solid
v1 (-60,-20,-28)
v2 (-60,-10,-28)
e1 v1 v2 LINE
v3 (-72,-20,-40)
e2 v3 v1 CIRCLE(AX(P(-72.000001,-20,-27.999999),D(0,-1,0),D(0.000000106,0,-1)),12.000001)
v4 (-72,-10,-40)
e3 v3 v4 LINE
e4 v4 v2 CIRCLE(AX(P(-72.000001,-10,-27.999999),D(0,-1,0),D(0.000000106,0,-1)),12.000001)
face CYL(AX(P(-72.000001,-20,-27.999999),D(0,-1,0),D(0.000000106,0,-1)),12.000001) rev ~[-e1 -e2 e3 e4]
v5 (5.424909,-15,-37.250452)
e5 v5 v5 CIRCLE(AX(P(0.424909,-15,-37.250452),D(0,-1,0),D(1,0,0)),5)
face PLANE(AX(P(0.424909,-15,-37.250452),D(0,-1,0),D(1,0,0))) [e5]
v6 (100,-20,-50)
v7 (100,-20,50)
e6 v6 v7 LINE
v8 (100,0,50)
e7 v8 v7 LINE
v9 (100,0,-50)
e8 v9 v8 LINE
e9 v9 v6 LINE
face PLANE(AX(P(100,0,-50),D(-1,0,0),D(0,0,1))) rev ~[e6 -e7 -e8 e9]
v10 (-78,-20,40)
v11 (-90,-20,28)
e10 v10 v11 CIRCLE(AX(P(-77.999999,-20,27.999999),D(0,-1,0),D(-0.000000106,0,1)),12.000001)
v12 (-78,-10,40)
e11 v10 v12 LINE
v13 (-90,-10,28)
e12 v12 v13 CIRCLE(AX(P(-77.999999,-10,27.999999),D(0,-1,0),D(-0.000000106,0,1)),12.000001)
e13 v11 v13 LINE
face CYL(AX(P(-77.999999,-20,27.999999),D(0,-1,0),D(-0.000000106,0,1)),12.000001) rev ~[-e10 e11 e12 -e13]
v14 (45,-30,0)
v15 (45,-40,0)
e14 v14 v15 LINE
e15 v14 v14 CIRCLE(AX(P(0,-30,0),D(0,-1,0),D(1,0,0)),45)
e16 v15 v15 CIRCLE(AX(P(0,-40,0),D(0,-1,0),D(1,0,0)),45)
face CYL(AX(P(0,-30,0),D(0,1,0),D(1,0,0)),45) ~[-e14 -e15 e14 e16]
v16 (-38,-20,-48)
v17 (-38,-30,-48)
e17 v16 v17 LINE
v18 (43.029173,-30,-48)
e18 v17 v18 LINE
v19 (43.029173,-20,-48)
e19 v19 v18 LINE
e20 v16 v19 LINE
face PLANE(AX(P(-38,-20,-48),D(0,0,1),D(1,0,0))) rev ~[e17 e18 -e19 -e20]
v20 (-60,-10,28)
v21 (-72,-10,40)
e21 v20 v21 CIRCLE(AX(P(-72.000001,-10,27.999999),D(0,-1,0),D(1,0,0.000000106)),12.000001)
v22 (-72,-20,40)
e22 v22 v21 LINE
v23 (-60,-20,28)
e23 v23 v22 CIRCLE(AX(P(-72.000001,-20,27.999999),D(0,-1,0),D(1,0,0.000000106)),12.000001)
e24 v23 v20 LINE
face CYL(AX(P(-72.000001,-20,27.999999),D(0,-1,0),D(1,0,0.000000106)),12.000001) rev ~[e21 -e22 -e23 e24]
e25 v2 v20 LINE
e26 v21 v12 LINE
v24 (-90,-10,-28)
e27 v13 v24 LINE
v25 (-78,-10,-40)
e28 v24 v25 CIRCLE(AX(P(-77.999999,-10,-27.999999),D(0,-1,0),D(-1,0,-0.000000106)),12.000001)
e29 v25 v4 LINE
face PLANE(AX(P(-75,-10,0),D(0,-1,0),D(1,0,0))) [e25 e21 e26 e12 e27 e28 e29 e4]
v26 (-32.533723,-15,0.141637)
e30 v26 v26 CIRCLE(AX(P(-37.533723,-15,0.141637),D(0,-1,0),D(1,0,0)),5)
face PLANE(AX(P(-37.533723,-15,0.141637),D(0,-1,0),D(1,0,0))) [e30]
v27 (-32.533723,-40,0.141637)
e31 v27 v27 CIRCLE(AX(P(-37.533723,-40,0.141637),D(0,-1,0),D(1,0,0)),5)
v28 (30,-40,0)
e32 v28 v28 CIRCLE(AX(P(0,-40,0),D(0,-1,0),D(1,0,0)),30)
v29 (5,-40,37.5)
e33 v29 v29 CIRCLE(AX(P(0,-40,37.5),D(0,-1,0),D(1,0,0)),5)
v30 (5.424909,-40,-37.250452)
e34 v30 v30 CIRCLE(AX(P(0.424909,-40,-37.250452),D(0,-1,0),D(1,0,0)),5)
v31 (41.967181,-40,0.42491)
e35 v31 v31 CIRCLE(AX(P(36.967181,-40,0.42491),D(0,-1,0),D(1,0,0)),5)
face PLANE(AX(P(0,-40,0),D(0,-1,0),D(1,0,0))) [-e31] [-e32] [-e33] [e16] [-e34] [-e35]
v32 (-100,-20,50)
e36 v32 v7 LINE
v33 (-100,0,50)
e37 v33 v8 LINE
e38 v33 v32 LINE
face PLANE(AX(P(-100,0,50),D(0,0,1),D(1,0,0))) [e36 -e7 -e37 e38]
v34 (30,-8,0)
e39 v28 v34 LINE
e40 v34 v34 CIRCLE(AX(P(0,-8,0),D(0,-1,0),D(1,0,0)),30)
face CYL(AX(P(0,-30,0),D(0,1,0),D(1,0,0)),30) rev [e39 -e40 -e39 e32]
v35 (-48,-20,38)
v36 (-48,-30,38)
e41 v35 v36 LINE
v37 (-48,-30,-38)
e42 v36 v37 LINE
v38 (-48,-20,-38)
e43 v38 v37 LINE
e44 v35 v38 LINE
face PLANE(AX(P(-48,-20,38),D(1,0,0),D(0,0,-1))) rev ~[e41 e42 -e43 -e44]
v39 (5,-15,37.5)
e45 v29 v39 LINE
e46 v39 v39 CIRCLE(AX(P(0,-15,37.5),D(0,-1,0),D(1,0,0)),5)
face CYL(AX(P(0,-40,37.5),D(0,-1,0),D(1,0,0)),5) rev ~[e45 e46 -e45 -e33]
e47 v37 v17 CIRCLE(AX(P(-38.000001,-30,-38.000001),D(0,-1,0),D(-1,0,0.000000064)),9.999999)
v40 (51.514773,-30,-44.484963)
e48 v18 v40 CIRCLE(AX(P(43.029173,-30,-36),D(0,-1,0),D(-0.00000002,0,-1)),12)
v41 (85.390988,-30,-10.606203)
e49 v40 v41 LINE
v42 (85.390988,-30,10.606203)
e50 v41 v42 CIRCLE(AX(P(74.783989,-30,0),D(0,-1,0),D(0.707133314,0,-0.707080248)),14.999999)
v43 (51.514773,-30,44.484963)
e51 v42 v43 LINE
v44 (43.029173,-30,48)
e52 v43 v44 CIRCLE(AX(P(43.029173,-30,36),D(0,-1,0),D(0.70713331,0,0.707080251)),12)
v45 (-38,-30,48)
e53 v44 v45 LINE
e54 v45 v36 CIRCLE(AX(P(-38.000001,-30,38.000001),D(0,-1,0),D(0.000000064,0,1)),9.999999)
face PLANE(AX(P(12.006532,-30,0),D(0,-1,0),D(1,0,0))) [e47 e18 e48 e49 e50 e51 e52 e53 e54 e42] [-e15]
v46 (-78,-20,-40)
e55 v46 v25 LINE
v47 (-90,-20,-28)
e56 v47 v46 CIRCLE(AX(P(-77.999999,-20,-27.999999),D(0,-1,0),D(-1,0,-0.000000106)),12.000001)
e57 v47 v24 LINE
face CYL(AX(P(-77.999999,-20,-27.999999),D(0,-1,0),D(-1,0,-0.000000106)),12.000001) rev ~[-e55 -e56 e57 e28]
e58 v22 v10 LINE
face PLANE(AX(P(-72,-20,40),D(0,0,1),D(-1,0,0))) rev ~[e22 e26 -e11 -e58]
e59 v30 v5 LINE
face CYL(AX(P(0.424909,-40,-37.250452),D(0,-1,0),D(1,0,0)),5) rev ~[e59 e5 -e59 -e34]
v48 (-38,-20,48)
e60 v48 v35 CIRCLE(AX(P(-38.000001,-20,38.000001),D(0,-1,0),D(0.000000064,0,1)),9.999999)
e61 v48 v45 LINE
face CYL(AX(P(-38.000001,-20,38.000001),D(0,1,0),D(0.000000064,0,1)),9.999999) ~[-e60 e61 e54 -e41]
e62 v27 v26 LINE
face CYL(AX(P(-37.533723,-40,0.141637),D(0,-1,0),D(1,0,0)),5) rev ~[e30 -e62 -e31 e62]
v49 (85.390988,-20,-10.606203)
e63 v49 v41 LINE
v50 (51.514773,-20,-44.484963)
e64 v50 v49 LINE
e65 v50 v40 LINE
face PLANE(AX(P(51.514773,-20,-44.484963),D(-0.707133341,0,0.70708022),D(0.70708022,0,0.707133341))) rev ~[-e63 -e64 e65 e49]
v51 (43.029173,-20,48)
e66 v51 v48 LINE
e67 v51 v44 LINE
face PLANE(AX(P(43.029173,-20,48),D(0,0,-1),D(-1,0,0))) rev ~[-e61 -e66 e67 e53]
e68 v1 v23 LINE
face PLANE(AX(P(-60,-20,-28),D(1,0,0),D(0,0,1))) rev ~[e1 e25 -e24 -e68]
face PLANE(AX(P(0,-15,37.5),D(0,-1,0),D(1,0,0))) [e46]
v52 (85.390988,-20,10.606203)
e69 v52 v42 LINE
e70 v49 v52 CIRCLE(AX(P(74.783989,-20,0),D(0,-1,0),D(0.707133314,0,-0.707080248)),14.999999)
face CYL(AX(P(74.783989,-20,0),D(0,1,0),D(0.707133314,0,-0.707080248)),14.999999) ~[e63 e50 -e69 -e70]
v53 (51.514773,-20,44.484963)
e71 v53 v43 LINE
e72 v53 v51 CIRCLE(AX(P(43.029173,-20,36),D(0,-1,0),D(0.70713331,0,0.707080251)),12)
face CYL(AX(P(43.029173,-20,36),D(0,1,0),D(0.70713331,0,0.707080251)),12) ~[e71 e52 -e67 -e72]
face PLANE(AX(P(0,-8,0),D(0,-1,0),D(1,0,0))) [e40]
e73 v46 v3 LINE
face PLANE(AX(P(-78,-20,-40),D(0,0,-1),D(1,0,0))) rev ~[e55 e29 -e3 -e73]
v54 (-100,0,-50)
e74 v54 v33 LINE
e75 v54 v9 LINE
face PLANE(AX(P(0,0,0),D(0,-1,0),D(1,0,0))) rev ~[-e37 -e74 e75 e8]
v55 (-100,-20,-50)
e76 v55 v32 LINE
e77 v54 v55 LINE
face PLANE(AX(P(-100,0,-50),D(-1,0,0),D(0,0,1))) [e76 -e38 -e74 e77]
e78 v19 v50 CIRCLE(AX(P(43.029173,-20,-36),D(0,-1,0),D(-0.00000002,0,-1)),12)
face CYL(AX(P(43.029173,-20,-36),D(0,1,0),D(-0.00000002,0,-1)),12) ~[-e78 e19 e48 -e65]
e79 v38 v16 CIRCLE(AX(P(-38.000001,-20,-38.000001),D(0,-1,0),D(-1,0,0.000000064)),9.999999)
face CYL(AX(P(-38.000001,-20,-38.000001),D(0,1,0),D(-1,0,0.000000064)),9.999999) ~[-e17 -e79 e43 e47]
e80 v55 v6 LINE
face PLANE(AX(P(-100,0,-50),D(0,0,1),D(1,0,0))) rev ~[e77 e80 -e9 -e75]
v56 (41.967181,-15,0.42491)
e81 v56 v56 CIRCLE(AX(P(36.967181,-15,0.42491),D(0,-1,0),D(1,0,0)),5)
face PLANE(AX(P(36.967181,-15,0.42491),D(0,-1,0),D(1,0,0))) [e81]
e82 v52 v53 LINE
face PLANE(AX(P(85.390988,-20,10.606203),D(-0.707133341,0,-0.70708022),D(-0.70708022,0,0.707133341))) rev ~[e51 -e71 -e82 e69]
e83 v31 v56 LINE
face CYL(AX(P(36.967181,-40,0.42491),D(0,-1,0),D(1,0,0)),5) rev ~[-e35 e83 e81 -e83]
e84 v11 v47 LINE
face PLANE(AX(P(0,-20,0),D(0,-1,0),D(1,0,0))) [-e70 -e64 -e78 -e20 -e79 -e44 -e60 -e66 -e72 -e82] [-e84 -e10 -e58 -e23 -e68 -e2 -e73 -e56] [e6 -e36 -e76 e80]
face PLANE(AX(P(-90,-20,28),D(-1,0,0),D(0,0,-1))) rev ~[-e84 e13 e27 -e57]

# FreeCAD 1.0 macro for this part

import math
import FreeCAD as App
import Part
import Sketcher

V = App.Vector


def add_polygon(sketch, points):
    """Adds a closed chain of lines whose ends are joined by coincident constraints."""
    first, n = sketch.GeometryCount, len(points)
    for a, b in zip(points, points[1:] + points[:1]):
        sketch.addGeometry(Part.LineSegment(App.Vector(*a, 0), App.Vector(*b, 0)), False)
    for i in range(n):
        sketch.addConstraint(Sketcher.Constraint("Coincident", first + i, 2, first + (i + 1) % n, 1))

doc = App.newDocument("Part")
body = doc.addObject("PartDesign::Body", "Body")

# Sketch on XZ plane
sketch1 = body.newObject("Sketcher::SketchObject", "Sketch")
sketch1.AttachmentSupport = (doc.getObject("XZ_Plane"), [""])
sketch1.MapMode = "FlatFace"
add_polygon(sketch1, [(-100, 50), (-100, -50), (100, -50), (100, 50)])  # lines 0-3
sketch1.addConstraint([
    Sketcher.Constraint("Vertical", 0),
    Sketcher.Constraint("Horizontal", 1),
    Sketcher.Constraint("Vertical", 2),
    Sketcher.Constraint("Horizontal", 3),
    Sketcher.Constraint("Symmetric", 0, 2, 2, 2, -1, 1),
    Sketcher.Constraint("DistanceX", 1, 1, 1, 2, 200.0),
    Sketcher.Constraint("DistanceY", 0, 2, 0, 1, 100.0),
])
pad1 = body.newObject("PartDesign::Pad", "Pad")
pad1.Profile = sketch1
pad1.Length = 20

# Sketch on XZ plane
sketch2 = body.newObject("Sketcher::SketchObject", "Sketch001")
sketch2.AttachmentSupport = (doc.getObject("XZ_Plane"), [""])
sketch2.MapMode = "FlatFace"
sketch2.AttachmentOffset = App.Placement(V(0, 0, 20), App.Rotation())
sketch2.addGeometry([
    Part.LineSegment(V(-72, 40, 0), V(-78, 40, 0)),  # 0
    Part.ArcOfCircle(Part.Circle(V(-78, 28, 0), V(0, 0, 1), 12), math.radians(90), math.radians(180)),  # 1
    Part.LineSegment(V(-90, 28, 0), V(-90, -28, 0)),  # 2
    Part.ArcOfCircle(Part.Circle(V(-78, -28, 0), V(0, 0, 1), 12), math.radians(-180), math.radians(-90)),  # 3
    Part.LineSegment(V(-78, -40, 0), V(-72, -40, 0)),  # 4
    Part.ArcOfCircle(Part.Circle(V(-72, -28, 0), V(0, 0, 1), 12), math.radians(-90), math.radians(0)),  # 5
    Part.LineSegment(V(-60, -28, 0), V(-60, 28, 0)),  # 6
    Part.ArcOfCircle(Part.Circle(V(-72, 28, 0), V(0, 0, 1), 12), math.radians(0), math.radians(90)),  # 7
], False)
sketch2.addConstraint([
    Sketcher.Constraint("Tangent", 0, 2, 1, 1),
    Sketcher.Constraint("Tangent", 1, 2, 2, 1),
    Sketcher.Constraint("Tangent", 2, 2, 3, 1),
    Sketcher.Constraint("Tangent", 3, 2, 4, 1),
    Sketcher.Constraint("Tangent", 4, 2, 5, 1),
    Sketcher.Constraint("Tangent", 5, 2, 6, 1),
    Sketcher.Constraint("Tangent", 6, 2, 7, 1),
    Sketcher.Constraint("Tangent", 7, 2, 0, 1),
    Sketcher.Constraint("Horizontal", 0),
    Sketcher.Constraint("Vertical", 2),
    Sketcher.Constraint("Horizontal", 4),
    Sketcher.Constraint("Vertical", 6),
    Sketcher.Constraint("Equal", 1, 3),
    Sketcher.Constraint("Equal", 3, 5),
    Sketcher.Constraint("Equal", 5, 7),
    Sketcher.Constraint("Radius", 1, 12.000001),
    Sketcher.Constraint("DistanceX", 0, 2, 0, 1, 6.0),
    Sketcher.Constraint("DistanceY", 2, 2, 2, 1, 56.0),
    Sketcher.Constraint("DistanceX", 1, 3, -1, 1, 77.999999),
    Sketcher.Constraint("DistanceY", -1, 1, 1, 3, 27.999999),
])
pocket1 = body.newObject("PartDesign::Pocket", "Pocket")
pocket1.Profile = sketch2
pocket1.Length = 10

# Sketch on XZ plane
sketch3 = body.newObject("Sketcher::SketchObject", "Sketch002")
sketch3.AttachmentSupport = (doc.getObject("XZ_Plane"), [""])
sketch3.MapMode = "FlatFace"
sketch3.AttachmentOffset = App.Placement(V(0, 0, 20), App.Rotation())
sketch3.addGeometry([
    Part.LineSegment(V(-38, -48, 0), V(43, -48, 0)),  # 0
    Part.ArcOfCircle(Part.Circle(V(43, -36, 0), V(0, 0, 1), 12), math.radians(-90), math.radians(-45)),  # 1
    Part.LineSegment(V(52, -44, 0), V(85, -11, 0)),  # 2
    Part.ArcOfCircle(Part.Circle(V(75, 0, 0), V(0, 0, 1), 15), math.radians(-45), math.radians(45)),  # 3
    Part.LineSegment(V(85, 11, 0), V(52, 44, 0)),  # 4
    Part.ArcOfCircle(Part.Circle(V(43, 36, 0), V(0, 0, 1), 12), math.radians(45), math.radians(90)),  # 5
    Part.LineSegment(V(43, 48, 0), V(-38, 48, 0)),  # 6
    Part.ArcOfCircle(Part.Circle(V(-38, 38, 0), V(0, 0, 1), 10), math.radians(90), math.radians(180)),  # 7
    Part.LineSegment(V(-48, 38, 0), V(-48, -38, 0)),  # 8
    Part.ArcOfCircle(Part.Circle(V(-38, -38, 0), V(0, 0, 1), 10), math.radians(180), math.radians(270)),  # 9
], False)
sketch3.addConstraint([
    Sketcher.Constraint("Tangent", 0, 2, 1, 1),
    Sketcher.Constraint("Tangent", 1, 2, 2, 1),
    Sketcher.Constraint("Tangent", 2, 2, 3, 1),
    Sketcher.Constraint("Tangent", 3, 2, 4, 1),
    Sketcher.Constraint("Tangent", 4, 2, 5, 1),
    Sketcher.Constraint("Tangent", 5, 2, 6, 1),
    Sketcher.Constraint("Tangent", 6, 2, 7, 1),
    Sketcher.Constraint("Tangent", 7, 2, 8, 1),
    Sketcher.Constraint("Tangent", 8, 2, 9, 1),
    Sketcher.Constraint("Tangent", 9, 2, 0, 1),
    Sketcher.Constraint("Horizontal", 0),
    Sketcher.Constraint("Horizontal", 6),
    Sketcher.Constraint("Vertical", 8),
    Sketcher.Constraint("Equal", 1, 5),
    Sketcher.Constraint("Equal", 7, 9),
    Sketcher.Constraint("Symmetric", 1, 3, 5, 3, -1),
    Sketcher.Constraint("PointOnObject", 3, 3, -1),
    Sketcher.Constraint("Radius", 1, 12.0),
    Sketcher.Constraint("Radius", 3, 14.999999),
    Sketcher.Constraint("Radius", 7, 9.999999),
    Sketcher.Constraint("DistanceY", 8, 2, 8, 1, 76.0),
    Sketcher.Constraint("DistanceX", 7, 3, -1, 1, 38.000001),
    Sketcher.Constraint("DistanceX", 3, 3, 2, 2, 10.606999),
    Sketcher.Constraint("DistanceX", 0, 1, 0, 2, 81.029173),
])
pad2 = body.newObject("PartDesign::Pad", "Pad001")
pad2.Profile = sketch3
pad2.Length = 10

# Sketch on XZ plane
sketch4 = body.newObject("Sketcher::SketchObject", "Sketch003")
sketch4.AttachmentSupport = (doc.getObject("XZ_Plane"), [""])
sketch4.MapMode = "FlatFace"
sketch4.AttachmentOffset = App.Placement(V(0, 0, 30), App.Rotation())
sketch4.addGeometry([
    Part.Circle(V(0, 0, 0), V(0, 0, 1), 45),
    Part.Circle(V(0, 0, 0), V(0, 0, 1), 30),
], False)
sketch4.addConstraint([
    Sketcher.Constraint("Coincident", 0, 3, -1, 1),
    Sketcher.Constraint("Coincident", 1, 3, -1, 1),
    Sketcher.Constraint("Diameter", 0, 90.0),
    Sketcher.Constraint("Diameter", 1, 60.0),
])
pad3 = body.newObject("PartDesign::Pad", "Pad002")
pad3.Profile = sketch4
pad3.Length = 10

# Sketch on XZ plane
sketch5 = body.newObject("Sketcher::SketchObject", "Sketch004")
sketch5.AttachmentSupport = (doc.getObject("XZ_Plane"), [""])
sketch5.MapMode = "FlatFace"
sketch5.AttachmentOffset = App.Placement(V(0, 0, 40), App.Rotation())
sketch5.addGeometry([
    Part.Circle(V(-38, 0, 0), V(0, 0, 1), 5),
    Part.Circle(V(37, 0, 0), V(0, 0, 1), 5),
    Part.Circle(V(0, 38, 0), V(0, 0, 1), 5),
    Part.Circle(V(0, -37, 0), V(0, 0, 1), 5),
], False)
sketch5.addConstraint([
    Sketcher.Constraint("Equal", 0, 1),
    Sketcher.Constraint("Equal", 1, 2),
    Sketcher.Constraint("Equal", 2, 3),
    Sketcher.Constraint("PointOnObject", 2, 3, -2),
    Sketcher.Constraint("Diameter", 0, 10.0),
    Sketcher.Constraint("DistanceY", -1, 1, 2, 3, 37.5),
    Sketcher.Constraint("DistanceX", -1, 1, 1, 3, 36.967181),
    Sketcher.Constraint("DistanceY", -1, 1, 1, 3, 0.42491),
    Sketcher.Constraint("DistanceX", -1, 1, 3, 3, 0.424909),
    Sketcher.Constraint("DistanceY", 3, 3, 0, 3, 37.392089),
    Sketcher.Constraint("DistanceY", 3, 3, 2, 3, 74.750452),
    Sketcher.Constraint("DistanceX", 0, 3, -1, 1, 37.533723),
])
pocket2 = body.newObject("PartDesign::Pocket", "Pocket001")
pocket2.Profile = sketch5
pocket2.Length = 25

# Sketch on XZ plane
sketch6 = body.newObject("Sketcher::SketchObject", "Sketch005")
sketch6.AttachmentSupport = (doc.getObject("XZ_Plane"), [""])
sketch6.MapMode = "FlatFace"
sketch6.AttachmentOffset = App.Placement(V(0, 0, 30), App.Rotation())
sketch6.addGeometry(Part.Circle(V(0, 0, 0), V(0, 0, 1), 30), False)
sketch6.addConstraint([
    Sketcher.Constraint("Coincident", 0, 3, -1, 1),
    Sketcher.Constraint("Diameter", 0, 60.0),
])
pocket3 = body.newObject("PartDesign::Pocket", "Pocket002")
pocket3.Profile = sketch6
pocket3.Length = 22

doc.recompute()
